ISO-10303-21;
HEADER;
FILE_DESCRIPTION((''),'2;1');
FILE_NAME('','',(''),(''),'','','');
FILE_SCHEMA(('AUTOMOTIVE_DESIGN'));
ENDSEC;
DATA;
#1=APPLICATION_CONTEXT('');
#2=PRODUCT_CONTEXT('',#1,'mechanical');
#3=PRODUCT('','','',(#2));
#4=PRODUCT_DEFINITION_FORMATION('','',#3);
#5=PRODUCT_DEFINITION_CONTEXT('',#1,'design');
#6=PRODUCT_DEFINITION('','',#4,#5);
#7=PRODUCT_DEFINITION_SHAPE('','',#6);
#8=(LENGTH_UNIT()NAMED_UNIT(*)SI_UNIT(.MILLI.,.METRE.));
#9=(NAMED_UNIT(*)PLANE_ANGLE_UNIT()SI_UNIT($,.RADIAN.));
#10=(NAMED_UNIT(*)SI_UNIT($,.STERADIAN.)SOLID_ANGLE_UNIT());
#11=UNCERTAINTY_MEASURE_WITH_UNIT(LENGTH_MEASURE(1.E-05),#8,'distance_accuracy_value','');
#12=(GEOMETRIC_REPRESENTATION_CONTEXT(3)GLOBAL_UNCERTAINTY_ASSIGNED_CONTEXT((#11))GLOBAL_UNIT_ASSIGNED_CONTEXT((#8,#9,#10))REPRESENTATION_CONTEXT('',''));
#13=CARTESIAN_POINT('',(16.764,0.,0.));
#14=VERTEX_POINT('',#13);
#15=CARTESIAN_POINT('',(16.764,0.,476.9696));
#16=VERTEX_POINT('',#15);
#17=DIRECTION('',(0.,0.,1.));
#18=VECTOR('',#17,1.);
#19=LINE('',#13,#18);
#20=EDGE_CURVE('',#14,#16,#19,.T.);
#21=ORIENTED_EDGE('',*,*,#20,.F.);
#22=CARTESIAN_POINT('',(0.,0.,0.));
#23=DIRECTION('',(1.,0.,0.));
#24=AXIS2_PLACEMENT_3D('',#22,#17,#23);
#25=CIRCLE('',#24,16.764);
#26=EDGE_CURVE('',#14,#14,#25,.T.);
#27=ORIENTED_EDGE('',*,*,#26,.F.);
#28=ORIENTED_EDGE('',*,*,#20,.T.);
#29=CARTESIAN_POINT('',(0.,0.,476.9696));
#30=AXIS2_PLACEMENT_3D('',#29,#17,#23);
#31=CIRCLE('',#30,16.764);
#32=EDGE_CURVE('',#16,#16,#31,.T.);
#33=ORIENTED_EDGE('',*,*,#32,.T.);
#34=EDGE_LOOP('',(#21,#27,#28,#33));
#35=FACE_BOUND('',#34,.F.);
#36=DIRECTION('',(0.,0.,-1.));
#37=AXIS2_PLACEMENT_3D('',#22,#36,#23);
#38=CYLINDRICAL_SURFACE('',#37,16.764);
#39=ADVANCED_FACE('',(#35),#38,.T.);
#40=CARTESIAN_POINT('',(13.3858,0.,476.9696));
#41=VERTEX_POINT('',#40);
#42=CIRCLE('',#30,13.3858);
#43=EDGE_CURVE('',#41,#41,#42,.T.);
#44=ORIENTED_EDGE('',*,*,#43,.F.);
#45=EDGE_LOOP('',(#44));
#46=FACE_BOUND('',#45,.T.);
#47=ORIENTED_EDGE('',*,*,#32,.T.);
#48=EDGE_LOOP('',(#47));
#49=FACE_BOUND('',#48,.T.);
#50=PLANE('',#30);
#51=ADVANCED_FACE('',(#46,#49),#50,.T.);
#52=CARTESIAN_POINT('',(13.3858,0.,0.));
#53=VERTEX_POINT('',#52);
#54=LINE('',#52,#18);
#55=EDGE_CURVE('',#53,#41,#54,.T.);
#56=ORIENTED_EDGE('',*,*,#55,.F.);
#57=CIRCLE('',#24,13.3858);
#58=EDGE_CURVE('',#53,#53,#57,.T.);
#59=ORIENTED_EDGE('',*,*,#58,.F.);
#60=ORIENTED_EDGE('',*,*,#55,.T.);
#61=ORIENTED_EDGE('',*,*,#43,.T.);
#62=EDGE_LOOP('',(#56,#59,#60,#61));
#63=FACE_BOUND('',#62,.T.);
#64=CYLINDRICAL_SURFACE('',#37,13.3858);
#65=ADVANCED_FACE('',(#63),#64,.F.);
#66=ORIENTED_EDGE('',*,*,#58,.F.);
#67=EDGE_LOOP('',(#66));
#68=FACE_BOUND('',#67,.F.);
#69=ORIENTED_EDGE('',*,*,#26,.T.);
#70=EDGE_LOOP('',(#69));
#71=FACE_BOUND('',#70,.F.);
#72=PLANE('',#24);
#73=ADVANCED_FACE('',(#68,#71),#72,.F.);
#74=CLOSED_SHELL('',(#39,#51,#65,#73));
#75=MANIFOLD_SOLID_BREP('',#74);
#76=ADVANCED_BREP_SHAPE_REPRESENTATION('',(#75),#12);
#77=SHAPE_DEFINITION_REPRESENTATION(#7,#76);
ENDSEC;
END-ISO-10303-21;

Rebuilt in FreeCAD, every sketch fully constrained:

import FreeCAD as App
import Part
import Sketcher

V = App.Vector
Q = App.Units.Quantity

doc = App.newDocument("Part")
body = doc.addObject("PartDesign::Body", "Body")

sketch1 = body.newObject("Sketcher::SketchObject", "Sketch")
sketch1.AttachmentSupport = (doc.getObject("XY_Plane"), [""])
sketch1.MapMode = "FlatFace"
sketch1.addGeometry(Part.Circle(V(0, 0, 0), V(0, 0, 1), 17), False)
sketch1.addGeometry(Part.Circle(V(0, 0, 0), V(0, 0, 1), 13), False)
sketch1.addConstraint(Sketcher.Constraint("Coincident", 0, 3, -1, 1))
sketch1.addConstraint(Sketcher.Constraint("Coincident", 1, 3, -1, 1))
sketch1.addConstraint(Sketcher.Constraint("Diameter", 0, Q("1.32 in")))
sketch1.addConstraint(Sketcher.Constraint("Diameter", 1, Q("1.054 in")))
pad1 = body.newObject("PartDesign::Pad", "Pad")
pad1.Profile = sketch1
pad1.Length = 476.9696

doc.recompute()
